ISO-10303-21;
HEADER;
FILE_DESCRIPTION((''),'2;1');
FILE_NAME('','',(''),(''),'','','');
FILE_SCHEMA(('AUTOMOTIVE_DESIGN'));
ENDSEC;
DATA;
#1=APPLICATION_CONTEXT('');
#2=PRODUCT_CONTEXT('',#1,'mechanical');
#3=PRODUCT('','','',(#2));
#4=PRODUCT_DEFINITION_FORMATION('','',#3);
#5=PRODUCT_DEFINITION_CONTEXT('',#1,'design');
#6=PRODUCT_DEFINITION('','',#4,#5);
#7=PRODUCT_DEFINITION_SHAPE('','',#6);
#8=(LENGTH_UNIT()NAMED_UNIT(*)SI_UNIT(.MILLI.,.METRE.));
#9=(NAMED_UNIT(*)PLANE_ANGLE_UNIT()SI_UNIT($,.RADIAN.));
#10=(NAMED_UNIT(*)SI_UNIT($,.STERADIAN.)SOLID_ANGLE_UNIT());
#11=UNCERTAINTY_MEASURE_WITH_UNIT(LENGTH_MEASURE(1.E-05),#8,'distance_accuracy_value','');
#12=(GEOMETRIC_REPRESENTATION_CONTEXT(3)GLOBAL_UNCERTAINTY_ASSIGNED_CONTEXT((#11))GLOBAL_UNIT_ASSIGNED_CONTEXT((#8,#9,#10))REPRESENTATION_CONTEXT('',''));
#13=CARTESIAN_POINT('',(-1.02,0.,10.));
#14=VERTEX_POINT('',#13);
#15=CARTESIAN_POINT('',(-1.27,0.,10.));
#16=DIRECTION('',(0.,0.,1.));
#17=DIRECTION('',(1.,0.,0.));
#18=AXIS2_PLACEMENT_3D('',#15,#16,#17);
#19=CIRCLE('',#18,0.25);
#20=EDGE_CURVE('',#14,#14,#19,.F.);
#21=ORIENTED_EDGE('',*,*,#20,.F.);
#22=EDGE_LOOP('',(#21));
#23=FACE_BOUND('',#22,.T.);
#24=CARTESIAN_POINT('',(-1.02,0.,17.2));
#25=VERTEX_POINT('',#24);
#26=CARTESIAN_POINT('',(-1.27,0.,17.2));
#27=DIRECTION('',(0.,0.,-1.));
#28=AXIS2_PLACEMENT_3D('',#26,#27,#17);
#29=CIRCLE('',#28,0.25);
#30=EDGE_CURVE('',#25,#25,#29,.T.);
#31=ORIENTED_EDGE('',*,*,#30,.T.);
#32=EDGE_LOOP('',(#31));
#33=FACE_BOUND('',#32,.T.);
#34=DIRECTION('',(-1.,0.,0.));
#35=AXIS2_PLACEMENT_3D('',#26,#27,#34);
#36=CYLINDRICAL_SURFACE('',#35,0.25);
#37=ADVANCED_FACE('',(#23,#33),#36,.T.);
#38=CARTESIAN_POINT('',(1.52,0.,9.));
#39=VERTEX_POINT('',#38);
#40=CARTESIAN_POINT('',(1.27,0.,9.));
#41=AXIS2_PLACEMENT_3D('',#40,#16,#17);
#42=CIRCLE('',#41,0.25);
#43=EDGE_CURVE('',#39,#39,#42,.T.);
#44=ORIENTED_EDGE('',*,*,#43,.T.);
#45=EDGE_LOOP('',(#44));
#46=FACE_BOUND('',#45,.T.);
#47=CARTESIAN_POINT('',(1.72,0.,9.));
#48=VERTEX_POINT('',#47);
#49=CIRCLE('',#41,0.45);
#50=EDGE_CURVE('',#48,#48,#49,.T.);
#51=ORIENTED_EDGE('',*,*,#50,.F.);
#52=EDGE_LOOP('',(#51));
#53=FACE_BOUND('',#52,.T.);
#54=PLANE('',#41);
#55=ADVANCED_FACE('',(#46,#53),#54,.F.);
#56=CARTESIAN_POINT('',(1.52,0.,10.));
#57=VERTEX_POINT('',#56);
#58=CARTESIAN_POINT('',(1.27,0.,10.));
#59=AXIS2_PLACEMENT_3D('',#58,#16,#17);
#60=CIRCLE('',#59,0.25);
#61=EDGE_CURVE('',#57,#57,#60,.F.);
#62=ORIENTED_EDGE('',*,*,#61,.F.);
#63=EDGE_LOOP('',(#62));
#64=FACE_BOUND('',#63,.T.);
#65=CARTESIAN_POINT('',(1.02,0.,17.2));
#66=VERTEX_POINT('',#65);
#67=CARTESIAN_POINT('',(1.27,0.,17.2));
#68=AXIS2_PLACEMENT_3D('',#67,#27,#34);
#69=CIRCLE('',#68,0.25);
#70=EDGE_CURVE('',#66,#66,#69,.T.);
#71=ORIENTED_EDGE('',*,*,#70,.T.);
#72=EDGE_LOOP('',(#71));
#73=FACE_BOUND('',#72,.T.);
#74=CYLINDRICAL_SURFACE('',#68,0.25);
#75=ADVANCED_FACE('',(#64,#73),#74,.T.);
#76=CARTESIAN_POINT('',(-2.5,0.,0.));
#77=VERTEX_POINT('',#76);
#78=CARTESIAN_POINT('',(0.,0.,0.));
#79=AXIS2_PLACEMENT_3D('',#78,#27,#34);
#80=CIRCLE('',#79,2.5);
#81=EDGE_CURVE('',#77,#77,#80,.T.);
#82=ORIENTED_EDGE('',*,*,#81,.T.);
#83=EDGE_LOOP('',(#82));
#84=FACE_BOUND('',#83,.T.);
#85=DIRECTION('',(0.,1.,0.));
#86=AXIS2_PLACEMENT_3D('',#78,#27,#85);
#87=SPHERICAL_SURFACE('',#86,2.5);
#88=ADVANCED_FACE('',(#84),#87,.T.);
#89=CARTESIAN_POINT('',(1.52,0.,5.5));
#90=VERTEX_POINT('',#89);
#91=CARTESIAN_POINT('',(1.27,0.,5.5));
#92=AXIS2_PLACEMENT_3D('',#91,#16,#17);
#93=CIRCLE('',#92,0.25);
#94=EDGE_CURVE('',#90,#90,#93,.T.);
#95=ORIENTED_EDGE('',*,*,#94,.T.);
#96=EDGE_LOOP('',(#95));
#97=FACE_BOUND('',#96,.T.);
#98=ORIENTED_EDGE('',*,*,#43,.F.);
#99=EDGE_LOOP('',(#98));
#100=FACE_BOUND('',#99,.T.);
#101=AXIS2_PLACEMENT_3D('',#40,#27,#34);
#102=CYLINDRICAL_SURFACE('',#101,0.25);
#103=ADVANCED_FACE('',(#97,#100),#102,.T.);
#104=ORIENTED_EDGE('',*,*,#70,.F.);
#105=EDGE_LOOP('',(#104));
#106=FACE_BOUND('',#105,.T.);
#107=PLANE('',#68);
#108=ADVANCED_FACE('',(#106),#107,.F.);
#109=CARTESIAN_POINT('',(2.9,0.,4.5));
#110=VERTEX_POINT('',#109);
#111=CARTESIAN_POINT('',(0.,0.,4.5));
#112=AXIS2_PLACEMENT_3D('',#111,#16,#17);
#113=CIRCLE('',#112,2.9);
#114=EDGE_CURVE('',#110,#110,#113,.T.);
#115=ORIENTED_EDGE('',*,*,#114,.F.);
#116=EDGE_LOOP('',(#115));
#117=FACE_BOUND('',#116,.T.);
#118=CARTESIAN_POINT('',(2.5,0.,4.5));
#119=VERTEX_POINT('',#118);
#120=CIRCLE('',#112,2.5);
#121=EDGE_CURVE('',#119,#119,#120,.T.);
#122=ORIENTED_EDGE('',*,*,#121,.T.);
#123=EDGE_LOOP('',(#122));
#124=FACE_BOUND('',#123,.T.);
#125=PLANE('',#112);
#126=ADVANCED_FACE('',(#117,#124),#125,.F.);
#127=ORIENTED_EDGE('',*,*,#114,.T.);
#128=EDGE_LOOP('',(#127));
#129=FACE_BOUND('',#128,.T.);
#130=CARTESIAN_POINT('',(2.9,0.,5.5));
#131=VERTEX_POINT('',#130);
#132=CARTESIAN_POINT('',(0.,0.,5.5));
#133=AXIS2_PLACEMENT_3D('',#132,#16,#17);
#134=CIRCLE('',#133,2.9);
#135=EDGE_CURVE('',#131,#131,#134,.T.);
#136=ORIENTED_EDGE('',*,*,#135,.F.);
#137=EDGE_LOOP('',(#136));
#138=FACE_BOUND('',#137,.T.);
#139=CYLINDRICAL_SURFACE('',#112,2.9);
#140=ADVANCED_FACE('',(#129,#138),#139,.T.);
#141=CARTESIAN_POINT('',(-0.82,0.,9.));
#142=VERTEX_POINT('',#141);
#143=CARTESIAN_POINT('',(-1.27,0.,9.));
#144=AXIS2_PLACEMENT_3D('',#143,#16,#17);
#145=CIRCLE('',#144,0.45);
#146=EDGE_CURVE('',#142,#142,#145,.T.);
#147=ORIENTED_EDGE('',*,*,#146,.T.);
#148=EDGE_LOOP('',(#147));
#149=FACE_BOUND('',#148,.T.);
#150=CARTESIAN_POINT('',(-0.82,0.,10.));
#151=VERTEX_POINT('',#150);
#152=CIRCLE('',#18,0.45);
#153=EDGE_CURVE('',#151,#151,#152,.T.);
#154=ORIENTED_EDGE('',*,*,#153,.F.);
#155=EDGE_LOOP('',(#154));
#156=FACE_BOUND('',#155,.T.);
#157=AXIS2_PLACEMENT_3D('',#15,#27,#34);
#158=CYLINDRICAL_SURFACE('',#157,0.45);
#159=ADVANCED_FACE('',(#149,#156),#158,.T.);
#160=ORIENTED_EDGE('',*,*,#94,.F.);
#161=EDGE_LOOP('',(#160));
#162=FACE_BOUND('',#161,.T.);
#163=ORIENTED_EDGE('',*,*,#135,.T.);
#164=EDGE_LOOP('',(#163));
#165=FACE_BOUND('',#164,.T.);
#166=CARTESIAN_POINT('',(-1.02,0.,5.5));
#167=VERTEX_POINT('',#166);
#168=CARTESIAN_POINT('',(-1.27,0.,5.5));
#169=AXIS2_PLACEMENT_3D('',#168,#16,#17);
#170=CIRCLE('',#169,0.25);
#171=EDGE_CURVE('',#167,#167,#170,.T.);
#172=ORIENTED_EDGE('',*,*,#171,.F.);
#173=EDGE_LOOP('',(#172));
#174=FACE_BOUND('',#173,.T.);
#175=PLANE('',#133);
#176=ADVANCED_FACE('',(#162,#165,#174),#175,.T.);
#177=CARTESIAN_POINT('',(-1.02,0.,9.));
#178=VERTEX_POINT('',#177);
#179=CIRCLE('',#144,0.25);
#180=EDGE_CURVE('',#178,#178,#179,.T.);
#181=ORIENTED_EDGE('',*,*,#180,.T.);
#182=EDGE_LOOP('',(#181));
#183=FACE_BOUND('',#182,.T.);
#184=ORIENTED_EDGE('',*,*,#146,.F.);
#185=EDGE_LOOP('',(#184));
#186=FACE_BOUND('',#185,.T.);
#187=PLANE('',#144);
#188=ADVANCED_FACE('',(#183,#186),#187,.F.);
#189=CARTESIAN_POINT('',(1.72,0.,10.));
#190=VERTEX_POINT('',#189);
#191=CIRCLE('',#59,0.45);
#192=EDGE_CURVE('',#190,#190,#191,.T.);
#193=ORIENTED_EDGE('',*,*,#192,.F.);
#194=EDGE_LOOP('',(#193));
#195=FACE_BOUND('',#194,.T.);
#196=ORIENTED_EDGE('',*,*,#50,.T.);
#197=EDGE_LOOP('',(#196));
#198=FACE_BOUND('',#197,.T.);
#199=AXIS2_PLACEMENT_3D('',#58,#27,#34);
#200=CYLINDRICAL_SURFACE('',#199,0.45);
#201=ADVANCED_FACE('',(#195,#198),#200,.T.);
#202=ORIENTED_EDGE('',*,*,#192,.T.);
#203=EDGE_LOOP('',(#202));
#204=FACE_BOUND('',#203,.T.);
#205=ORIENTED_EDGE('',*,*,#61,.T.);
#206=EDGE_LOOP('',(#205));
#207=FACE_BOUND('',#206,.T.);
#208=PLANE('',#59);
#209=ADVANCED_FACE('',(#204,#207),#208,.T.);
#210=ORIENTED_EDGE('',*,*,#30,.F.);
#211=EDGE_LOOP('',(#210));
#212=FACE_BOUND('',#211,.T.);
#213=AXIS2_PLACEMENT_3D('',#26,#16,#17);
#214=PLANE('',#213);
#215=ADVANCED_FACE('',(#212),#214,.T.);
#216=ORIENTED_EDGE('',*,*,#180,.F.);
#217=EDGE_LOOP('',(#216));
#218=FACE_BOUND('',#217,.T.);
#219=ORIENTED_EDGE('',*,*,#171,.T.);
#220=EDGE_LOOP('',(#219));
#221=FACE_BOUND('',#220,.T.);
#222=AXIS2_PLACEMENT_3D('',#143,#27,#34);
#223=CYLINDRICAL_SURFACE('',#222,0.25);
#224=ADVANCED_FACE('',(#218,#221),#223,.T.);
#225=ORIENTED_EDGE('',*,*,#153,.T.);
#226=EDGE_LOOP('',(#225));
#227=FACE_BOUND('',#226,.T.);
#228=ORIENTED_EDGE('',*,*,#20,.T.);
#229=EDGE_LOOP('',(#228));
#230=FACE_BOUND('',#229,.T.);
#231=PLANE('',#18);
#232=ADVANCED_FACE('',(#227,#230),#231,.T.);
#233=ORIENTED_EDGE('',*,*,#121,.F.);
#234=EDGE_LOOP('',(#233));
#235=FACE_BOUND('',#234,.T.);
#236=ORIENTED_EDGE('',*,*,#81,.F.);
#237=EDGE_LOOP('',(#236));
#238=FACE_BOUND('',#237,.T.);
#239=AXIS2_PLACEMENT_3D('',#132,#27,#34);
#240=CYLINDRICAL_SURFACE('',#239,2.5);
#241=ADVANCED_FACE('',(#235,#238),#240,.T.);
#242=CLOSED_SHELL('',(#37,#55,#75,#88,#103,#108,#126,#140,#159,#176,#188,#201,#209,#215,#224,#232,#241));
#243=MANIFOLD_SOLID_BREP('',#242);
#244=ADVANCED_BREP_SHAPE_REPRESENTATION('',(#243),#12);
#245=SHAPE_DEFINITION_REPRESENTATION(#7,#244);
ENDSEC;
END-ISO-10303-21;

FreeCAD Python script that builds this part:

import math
import FreeCAD as App
import Part
import Sketcher
from FreeCAD import Vector

doc = App.newDocument("Part")
body = doc.addObject("PartDesign::Body", "Body")

# Sketch on XY plane
sketch1 = body.newObject("Sketcher::SketchObject", "Sketch")
sketch1.AttachmentSupport = (doc.getObject("XY_Plane"), [""])
sketch1.MapMode = "FlatFace"
sketch1.addGeometry(Part.Circle(Vector(0, 0, 0), Vector(0, 0, 1), 2.5), False)
sketch1.addConstraint(Sketcher.Constraint("Coincident", 0, 3, -1, 1))
sketch1.addConstraint(Sketcher.Constraint("Diameter", 0, 5.0))
pad1 = body.newObject("PartDesign::Pad", "Pad")
pad1.Profile = sketch1
pad1.Length = 5.5

# Sketch on XY plane
sketch2 = body.newObject("Sketcher::SketchObject", "Sketch001")
sketch2.AttachmentSupport = (doc.getObject("XY_Plane"), [""])
sketch2.MapMode = "FlatFace"
sketch2.AttachmentOffset = App.Placement(Vector(0, 0, 5.5), App.Rotation())
sketch2.addGeometry(Part.Circle(Vector(0, 0, 0), Vector(0, 0, 1), 2.9), False)
sketch2.addConstraint(Sketcher.Constraint("Coincident", 0, 3, -1, 1))
sketch2.addConstraint(Sketcher.Constraint("Diameter", 0, 5.8))
pad2 = body.newObject("PartDesign::Pad", "Pad001")
pad2.Profile = sketch2
pad2.Length = 1
pad2.Reversed = True

# Sketch on XY plane
sketch3 = body.newObject("Sketcher::SketchObject", "Sketch002")
sketch3.AttachmentSupport = (doc.getObject("XY_Plane"), [""])
sketch3.MapMode = "FlatFace"
sketch3.AttachmentOffset = App.Placement(Vector(0, 0, 4.5), App.Rotation())
sketch3.addGeometry(Part.Circle(Vector(1.27, 0, 0), Vector(0, 0, 1), 0.25), False)
sketch3.addGeometry(Part.Circle(Vector(-1.27, 0, 0), Vector(0, 0, 1), 0.25), False)
sketch3.addConstraint(Sketcher.Constraint("Equal", 0, 1))
sketch3.addConstraint(Sketcher.Constraint("Symmetric", 0, 3, 1, 3, -1, 1))
sketch3.addConstraint(Sketcher.Constraint("PointOnObject", 0, 3, -1))
sketch3.addConstraint(Sketcher.Constraint("Diameter", 0, 0.5))
sketch3.addConstraint(Sketcher.Constraint("DistanceX", -1, 1, 0, 3, 1.27))
pad3 = body.newObject("PartDesign::Pad", "Pad002")
pad3.Profile = sketch3
pad3.Length = 12.7

# Sketch on YZ plane
sketch4 = body.newObject("Sketcher::SketchObject", "Sketch003")
sketch4.AttachmentSupport = (doc.getObject("YZ_Plane"), [""])
sketch4.MapMode = "FlatFace"
sketch4.addGeometry(Part.LineSegment(Vector(2.5, 0, 0), Vector(0, 0, 0)), False)
sketch4.addGeometry(Part.LineSegment(Vector(0, 0, 0), Vector(0, -2.5, 0)), False)
sketch4.addGeometry(Part.ArcOfCircle(Part.Circle(Vector(0, 0, 0), Vector(0, 0, 1), 2.5), math.radians(-90), math.radians(0)), False)
sketch4.addConstraint(Sketcher.Constraint("Coincident", 0, 2, 1, 1))
sketch4.addConstraint(Sketcher.Constraint("Coincident", 1, 2, 2, 1))
sketch4.addConstraint(Sketcher.Constraint("Coincident", 2, 2, 0, 1))
sketch4.addConstraint(Sketcher.Constraint("Horizontal", 0))
sketch4.addConstraint(Sketcher.Constraint("Vertical", 1))
sketch4.addConstraint(Sketcher.Constraint("Coincident", 2, 3, -1, 1))
sketch4.addConstraint(Sketcher.Constraint("Coincident", 0, 2, -1, 1))
sketch4.addConstraint(Sketcher.Constraint("Radius", 2, 2.5))
revolution = body.newObject("PartDesign::Revolution", "Revolution")
revolution.Profile = sketch4
revolution.ReferenceAxis = (sketch4, ["V_Axis"])
revolution.Angle = 360

# Sketch on XY plane
sketch5 = body.newObject("Sketcher::SketchObject", "Sketch004")
sketch5.AttachmentSupport = (doc.getObject("XY_Plane"), [""])
sketch5.MapMode = "FlatFace"
sketch5.AttachmentOffset = App.Placement(Vector(0, 0, 5.5), App.Rotation())
sketch5.addGeometry(Part.Circle(Vector(-1.27, 0, 0), Vector(0, 0, 1), 0.45), False)
sketch5.addGeometry(Part.Circle(Vector(-1.27, 0, 0), Vector(0, 0, 1), 0.25), False)
sketch5.addGeometry(Part.Circle(Vector(1.27, 0, 0), Vector(0, 0, 1), 0.45), False)
sketch5.addGeometry(Part.Circle(Vector(1.27, 0, 0), Vector(0, 0, 1), 0.25), False)
sketch5.addConstraint(Sketcher.Constraint("Coincident", 1, 3, 0, 3))
sketch5.addConstraint(Sketcher.Constraint("Coincident", 3, 3, 2, 3))
sketch5.addConstraint(Sketcher.Constraint("Equal", 0, 2))
sketch5.addConstraint(Sketcher.Constraint("Equal", 1, 3))
sketch5.addConstraint(Sketcher.Constraint("Symmetric", 0, 3, 2, 3, -1, 1))
sketch5.addConstraint(Sketcher.Constraint("PointOnObject", 0, 3, -1))
sketch5.addConstraint(Sketcher.Constraint("Diameter", 0, 0.9))
sketch5.addConstraint(Sketcher.Constraint("Diameter", 1, 0.5))
sketch5.addConstraint(Sketcher.Constraint("DistanceX", 0, 3, -1, 1, 1.27))
pad4 = body.newObject("PartDesign::Pad", "Pad003")
pad4.Profile = sketch5
pad4.Length = 4.5

# Sketch on XY plane
sketch6 = body.newObject("Sketcher::SketchObject", "Sketch005")
sketch6.AttachmentSupport = (doc.getObject("XY_Plane"), [""])
sketch6.MapMode = "FlatFace"
sketch6.AttachmentOffset = App.Placement(Vector(0, 0, 5.5), App.Rotation())
sketch6.addGeometry(Part.Circle(Vector(-1.27, 0, 0), Vector(0, 0, 1), 0.45), False)
sketch6.addGeometry(Part.Circle(Vector(-1.27, 0, 0), Vector(0, 0, 1), 0.25), False)
sketch6.addGeometry(Part.Circle(Vector(1.27, 0, 0), Vector(0, 0, 1), 0.45), False)
sketch6.addGeometry(Part.Circle(Vector(1.27, 0, 0), Vector(0, 0, 1), 0.25), False)
sketch6.addConstraint(Sketcher.Constraint("Coincident", 1, 3, 0, 3))
sketch6.addConstraint(Sketcher.Constraint("Coincident", 3, 3, 2, 3))
sketch6.addConstraint(Sketcher.Constraint("Equal", 0, 2))
sketch6.addConstraint(Sketcher.Constraint("Equal", 1, 3))
sketch6.addConstraint(Sketcher.Constraint("Symmetric", 0, 3, 2, 3, -1, 1))
sketch6.addConstraint(Sketcher.Constraint("PointOnObject", 0, 3, -1))
sketch6.addConstraint(Sketcher.Constraint("Diameter", 0, 0.9))
sketch6.addConstraint(Sketcher.Constraint("Diameter", 1, 0.5))
sketch6.addConstraint(Sketcher.Constraint("DistanceX", 0, 3, -1, 1, 1.27))
pocket1 = body.newObject("PartDesign::Pocket", "Pocket")
pocket1.Profile = sketch6
pocket1.Length = 3.5
pocket1.Reversed = True

doc.recompute()
